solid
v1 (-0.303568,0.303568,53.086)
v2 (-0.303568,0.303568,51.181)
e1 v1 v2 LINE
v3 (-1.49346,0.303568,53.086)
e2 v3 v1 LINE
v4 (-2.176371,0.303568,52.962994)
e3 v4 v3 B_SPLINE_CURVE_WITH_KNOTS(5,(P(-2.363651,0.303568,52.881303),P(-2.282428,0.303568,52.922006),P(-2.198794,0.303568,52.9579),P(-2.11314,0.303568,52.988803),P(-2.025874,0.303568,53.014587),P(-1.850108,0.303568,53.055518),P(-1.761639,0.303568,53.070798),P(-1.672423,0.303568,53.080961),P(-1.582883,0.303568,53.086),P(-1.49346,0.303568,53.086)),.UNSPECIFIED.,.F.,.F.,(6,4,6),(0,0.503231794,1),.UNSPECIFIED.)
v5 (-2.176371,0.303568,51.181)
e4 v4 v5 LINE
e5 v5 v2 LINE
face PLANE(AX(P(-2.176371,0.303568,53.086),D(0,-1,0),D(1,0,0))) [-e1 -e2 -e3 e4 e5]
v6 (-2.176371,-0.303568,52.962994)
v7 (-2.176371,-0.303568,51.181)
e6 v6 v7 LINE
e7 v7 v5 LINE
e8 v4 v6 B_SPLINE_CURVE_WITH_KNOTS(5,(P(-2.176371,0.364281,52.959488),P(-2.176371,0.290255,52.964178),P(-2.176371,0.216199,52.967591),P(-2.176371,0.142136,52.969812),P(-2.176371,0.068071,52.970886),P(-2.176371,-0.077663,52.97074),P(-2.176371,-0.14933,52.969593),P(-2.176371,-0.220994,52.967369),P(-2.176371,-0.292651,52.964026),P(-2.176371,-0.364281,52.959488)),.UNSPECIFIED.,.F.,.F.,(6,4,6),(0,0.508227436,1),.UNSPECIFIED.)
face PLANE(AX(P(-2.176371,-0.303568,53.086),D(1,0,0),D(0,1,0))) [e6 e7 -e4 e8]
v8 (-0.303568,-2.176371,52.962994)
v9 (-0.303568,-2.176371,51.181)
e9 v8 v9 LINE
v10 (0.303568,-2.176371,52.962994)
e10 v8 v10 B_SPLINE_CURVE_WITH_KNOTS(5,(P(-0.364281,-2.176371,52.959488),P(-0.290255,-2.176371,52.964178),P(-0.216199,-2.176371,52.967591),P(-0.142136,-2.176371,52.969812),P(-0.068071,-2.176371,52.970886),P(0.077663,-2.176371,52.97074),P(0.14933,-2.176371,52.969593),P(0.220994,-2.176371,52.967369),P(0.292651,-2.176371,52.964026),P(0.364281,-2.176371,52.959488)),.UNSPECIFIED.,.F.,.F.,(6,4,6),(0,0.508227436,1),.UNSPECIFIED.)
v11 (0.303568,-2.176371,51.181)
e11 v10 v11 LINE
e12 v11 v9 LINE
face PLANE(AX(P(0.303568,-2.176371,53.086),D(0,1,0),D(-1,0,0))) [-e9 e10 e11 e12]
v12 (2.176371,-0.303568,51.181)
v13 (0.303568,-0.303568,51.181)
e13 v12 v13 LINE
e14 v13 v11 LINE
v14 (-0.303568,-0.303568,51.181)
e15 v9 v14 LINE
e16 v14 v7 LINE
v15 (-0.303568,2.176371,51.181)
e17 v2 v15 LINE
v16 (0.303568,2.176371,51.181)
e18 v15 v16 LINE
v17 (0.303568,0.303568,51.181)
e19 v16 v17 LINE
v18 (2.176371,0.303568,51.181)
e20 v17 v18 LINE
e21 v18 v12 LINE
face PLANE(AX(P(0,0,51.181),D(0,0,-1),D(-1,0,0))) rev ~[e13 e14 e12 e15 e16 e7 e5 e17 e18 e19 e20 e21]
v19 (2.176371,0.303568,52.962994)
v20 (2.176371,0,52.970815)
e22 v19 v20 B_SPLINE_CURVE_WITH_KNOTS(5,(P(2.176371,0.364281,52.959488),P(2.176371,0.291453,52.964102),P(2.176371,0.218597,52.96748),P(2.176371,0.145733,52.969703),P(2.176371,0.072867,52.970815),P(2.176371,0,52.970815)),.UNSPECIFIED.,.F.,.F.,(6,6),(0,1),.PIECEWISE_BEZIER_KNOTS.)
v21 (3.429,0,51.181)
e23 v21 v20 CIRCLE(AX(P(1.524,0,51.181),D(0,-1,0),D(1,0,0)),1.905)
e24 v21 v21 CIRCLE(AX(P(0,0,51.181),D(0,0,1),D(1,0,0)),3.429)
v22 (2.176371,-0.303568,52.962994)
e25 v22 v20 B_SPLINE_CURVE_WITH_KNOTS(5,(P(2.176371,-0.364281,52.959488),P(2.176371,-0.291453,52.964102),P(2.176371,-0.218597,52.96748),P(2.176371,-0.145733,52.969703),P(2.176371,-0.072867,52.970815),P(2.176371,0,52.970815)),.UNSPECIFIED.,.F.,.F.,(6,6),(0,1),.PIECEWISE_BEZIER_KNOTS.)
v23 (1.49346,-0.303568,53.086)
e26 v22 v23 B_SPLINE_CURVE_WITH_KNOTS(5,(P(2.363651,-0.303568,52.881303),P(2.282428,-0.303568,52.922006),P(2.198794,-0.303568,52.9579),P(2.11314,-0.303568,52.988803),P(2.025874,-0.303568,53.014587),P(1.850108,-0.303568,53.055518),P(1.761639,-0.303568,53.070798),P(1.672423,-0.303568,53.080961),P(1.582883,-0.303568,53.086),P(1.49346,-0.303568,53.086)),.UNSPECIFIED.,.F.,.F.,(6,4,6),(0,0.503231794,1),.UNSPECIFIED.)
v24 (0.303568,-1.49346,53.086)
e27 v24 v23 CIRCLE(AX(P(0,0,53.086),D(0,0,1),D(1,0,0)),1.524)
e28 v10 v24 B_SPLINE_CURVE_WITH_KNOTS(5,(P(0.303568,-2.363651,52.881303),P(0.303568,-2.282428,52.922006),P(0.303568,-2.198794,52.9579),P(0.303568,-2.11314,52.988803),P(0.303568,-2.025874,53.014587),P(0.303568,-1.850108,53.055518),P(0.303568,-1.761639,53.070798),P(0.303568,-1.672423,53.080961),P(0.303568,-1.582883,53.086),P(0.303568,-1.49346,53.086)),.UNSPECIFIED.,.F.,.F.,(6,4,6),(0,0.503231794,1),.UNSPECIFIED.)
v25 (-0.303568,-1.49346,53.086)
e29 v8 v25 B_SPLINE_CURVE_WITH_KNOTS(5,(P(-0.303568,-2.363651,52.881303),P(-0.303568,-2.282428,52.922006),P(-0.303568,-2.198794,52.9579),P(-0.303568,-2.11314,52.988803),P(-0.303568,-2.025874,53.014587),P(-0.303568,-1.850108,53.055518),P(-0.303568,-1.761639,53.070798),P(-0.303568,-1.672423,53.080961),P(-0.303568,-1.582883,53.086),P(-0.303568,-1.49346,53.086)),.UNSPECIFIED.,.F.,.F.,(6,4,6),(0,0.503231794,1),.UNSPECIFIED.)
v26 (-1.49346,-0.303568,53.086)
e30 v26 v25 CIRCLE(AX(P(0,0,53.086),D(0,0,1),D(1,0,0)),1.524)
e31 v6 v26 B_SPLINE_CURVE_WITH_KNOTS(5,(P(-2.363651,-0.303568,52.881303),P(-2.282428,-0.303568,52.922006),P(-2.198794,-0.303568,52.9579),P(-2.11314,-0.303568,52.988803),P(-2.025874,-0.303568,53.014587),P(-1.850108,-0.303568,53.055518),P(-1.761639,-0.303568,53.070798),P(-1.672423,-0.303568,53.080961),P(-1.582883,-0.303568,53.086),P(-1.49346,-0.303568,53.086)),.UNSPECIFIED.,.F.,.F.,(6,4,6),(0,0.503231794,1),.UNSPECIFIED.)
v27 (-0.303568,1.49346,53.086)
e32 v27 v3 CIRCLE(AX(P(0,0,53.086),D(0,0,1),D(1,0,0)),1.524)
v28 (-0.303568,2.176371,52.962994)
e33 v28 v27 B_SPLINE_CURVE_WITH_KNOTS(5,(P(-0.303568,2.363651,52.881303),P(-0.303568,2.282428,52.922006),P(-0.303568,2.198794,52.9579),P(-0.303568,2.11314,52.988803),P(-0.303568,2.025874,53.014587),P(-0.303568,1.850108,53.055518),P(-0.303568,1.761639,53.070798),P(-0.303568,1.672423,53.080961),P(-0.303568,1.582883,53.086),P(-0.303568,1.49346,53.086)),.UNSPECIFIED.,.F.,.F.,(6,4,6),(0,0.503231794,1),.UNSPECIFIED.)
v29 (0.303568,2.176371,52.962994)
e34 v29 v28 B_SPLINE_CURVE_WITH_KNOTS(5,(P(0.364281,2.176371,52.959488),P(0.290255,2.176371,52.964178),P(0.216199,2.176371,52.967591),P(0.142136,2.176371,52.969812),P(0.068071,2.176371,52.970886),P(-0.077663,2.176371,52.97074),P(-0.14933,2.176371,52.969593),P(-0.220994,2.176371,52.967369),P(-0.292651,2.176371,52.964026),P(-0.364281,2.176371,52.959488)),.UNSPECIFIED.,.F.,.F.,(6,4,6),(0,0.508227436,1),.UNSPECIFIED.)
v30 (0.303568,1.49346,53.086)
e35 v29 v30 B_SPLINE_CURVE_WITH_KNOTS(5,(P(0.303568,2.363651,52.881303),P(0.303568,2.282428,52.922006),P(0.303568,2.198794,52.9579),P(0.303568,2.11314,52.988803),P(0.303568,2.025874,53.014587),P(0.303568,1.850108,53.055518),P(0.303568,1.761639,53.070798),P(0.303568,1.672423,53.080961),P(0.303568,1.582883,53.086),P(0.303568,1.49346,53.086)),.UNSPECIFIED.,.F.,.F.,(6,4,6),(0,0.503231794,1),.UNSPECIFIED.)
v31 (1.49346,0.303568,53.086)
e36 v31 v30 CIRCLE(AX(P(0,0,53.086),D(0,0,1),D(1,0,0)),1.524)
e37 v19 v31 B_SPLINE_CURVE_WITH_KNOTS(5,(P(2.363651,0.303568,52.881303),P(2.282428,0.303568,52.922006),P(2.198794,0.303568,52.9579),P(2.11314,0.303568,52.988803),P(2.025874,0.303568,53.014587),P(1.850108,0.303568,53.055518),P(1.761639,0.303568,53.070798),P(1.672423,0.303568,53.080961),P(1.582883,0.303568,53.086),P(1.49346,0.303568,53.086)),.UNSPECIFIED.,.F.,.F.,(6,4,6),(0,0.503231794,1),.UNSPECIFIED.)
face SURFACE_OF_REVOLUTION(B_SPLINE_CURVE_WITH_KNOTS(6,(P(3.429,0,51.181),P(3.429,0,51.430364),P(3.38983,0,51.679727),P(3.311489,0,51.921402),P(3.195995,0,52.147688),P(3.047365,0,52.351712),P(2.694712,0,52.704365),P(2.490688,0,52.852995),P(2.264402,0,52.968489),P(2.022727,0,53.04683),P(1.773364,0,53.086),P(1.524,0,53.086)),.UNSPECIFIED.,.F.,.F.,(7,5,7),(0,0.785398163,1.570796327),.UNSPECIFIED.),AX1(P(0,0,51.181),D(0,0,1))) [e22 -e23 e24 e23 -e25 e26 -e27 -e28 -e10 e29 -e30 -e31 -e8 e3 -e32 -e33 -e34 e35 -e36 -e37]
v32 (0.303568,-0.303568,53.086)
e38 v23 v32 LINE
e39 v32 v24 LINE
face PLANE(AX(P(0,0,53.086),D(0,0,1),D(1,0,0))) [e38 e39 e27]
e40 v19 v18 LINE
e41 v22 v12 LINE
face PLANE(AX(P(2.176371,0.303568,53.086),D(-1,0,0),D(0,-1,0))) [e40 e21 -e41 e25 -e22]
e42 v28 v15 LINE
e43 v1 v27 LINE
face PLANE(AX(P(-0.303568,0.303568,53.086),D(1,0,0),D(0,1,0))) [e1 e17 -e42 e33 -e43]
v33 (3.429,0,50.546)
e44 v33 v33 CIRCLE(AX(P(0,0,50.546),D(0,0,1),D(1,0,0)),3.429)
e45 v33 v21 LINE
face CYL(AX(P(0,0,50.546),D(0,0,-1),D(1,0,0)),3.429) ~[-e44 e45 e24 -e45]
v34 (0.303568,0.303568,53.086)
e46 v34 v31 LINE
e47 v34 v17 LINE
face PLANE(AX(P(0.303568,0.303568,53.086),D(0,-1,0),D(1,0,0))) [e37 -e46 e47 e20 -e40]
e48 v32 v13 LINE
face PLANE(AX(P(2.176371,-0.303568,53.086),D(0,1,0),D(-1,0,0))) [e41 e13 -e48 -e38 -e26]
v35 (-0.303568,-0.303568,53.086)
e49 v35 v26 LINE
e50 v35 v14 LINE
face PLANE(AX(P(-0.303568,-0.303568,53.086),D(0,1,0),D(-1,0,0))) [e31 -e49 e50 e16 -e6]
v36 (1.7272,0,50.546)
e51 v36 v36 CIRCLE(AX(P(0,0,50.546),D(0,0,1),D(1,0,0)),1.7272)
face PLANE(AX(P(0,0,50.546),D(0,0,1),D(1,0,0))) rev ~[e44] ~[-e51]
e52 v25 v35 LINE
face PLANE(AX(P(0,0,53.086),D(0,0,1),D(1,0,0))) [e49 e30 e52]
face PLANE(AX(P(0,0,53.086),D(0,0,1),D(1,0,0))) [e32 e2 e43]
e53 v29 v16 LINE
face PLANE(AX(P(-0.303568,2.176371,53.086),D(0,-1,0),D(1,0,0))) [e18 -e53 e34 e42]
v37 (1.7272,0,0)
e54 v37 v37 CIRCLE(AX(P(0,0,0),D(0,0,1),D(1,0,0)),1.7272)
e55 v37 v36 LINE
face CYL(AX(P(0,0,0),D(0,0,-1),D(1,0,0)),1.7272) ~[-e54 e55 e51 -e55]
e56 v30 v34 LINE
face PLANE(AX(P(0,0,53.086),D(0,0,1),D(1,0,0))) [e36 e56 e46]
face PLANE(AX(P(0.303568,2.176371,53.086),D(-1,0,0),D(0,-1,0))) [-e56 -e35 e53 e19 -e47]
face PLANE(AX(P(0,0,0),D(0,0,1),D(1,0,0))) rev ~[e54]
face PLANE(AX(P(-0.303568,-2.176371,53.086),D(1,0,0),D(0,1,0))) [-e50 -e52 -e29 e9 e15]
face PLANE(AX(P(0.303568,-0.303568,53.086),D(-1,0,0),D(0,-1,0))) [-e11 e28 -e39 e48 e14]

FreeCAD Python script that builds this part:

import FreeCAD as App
import Part
import Sketcher

V = App.Vector
Q = App.Units.Quantity


def edges_at(feature, points):
    """Names of the edges that pass closest to the given points."""
    edges = feature.Shape.Edges
    near = lambda p: min(range(len(edges)), key=lambda i: edges[i].distToShape(Part.Vertex(*p))[0])
    return sorted({f"Edge{near(p) + 1}" for p in points})

doc = App.newDocument("Part")
body = doc.addObject("PartDesign::Body", "Body")

# Sketch on XY plane
sketch1 = doc.addObject("Sketcher::SketchObject", "Sketch")
body.addObject(sketch1)
sketch1.AttachmentSupport = (doc.XY_Plane, [""])
sketch1.MapMode = "FlatFace"
sketch1.addGeometry(Part.Circle(V(0, 0, 0), V(0, 0, 1), 1.7), False)
sketch1.addConstraint(Sketcher.Constraint("Coincident", 0, 3, -1, 1))
sketch1.addConstraint(Sketcher.Constraint("Diameter", 0, Q("0.136 in")))
pad1 = doc.addObject("PartDesign::Pad", "Pad")
body.addObject(pad1)
pad1.Profile = sketch1
pad1.Length = Q("1.99 in")

# Sketch on XY plane
sketch2 = doc.addObject("Sketcher::SketchObject", "Sketch001")
body.addObject(sketch2)
sketch2.AttachmentSupport = (doc.XY_Plane, [""])
sketch2.MapMode = "FlatFace"
sketch2.AttachmentOffset = App.Placement(V(0, 0, 1.99 * 25.4), App.Rotation())
sketch2.addGeometry(Part.Circle(V(0, 0, 0), V(0, 0, 1), 3.4), False)
sketch2.addConstraint(Sketcher.Constraint("Coincident", 0, 3, -1, 1))
sketch2.addConstraint(Sketcher.Constraint("Diameter", 0, Q("0.27 in")))
pad2 = doc.addObject("PartDesign::Pad", "Pad001")
body.addObject(pad2)
pad2.Profile = sketch2
pad2.Length = Q("0.1 in")
doc.recompute()

fillet = doc.addObject("PartDesign::Fillet", "Fillet")
body.addObject(fillet)
fillet.Base = (pad2, edges_at(pad2, [(-3.429, 0, 53.086)]))
fillet.Radius = Q("0.075 in")

# Sketch on XY plane
sketch3 = doc.addObject("Sketcher::SketchObject", "Sketch002")
body.addObject(sketch3)
sketch3.AttachmentSupport = (doc.XY_Plane, [""])
sketch3.MapMode = "FlatFace"
sketch3.AttachmentOffset = App.Placement(V(0, 0, 2.09 * 25.4), App.Rotation())
sketch3.addGeometry(Part.LineSegment(V(-0.3, 2.2, 0), V(-0.3, 0.3, 0)), False)
sketch3.addGeometry(Part.LineSegment(V(-0.3, 0.3, 0), V(-2.2, 0.3, 0)), False)
sketch3.addGeometry(Part.LineSegment(V(-2.2, 0.3, 0), V(-2.2, -0.3, 0)), False)
sketch3.addGeometry(Part.LineSegment(V(-2.2, -0.3, 0), V(-0.3, -0.3, 0)), False)
sketch3.addGeometry(Part.LineSegment(V(-0.3, -0.3, 0), V(-0.3, -2.2, 0)), False)
sketch3.addGeometry(Part.LineSegment(V(-0.3, -2.2, 0), V(0.3, -2.2, 0)), False)
sketch3.addGeometry(Part.LineSegment(V(0.3, -2.2, 0), V(0.3, -0.3, 0)), False)
sketch3.addGeometry(Part.LineSegment(V(0.3, -0.3, 0), V(2.2, -0.3, 0)), False)
sketch3.addGeometry(Part.LineSegment(V(2.2, -0.3, 0), V(2.2, 0.3, 0)), False)
sketch3.addGeometry(Part.LineSegment(V(2.2, 0.3, 0), V(0.3, 0.3, 0)), False)
sketch3.addGeometry(Part.LineSegment(V(0.3, 0.3, 0), V(0.3, 2.2, 0)), False)
sketch3.addGeometry(Part.LineSegment(V(0.3, 2.2, 0), V(-0.3, 2.2, 0)), False)
sketch3.addConstraint(Sketcher.Constraint("Coincident", 0, 2, 1, 1))
sketch3.addConstraint(Sketcher.Constraint("Coincident", 1, 2, 2, 1))
sketch3.addConstraint(Sketcher.Constraint("Coincident", 2, 2, 3, 1))
sketch3.addConstraint(Sketcher.Constraint("Coincident", 3, 2, 4, 1))
sketch3.addConstraint(Sketcher.Constraint("Coincident", 4, 2, 5, 1))
sketch3.addConstraint(Sketcher.Constraint("Coincident", 5, 2, 6, 1))
sketch3.addConstraint(Sketcher.Constraint("Coincident", 6, 2, 7, 1))
sketch3.addConstraint(Sketcher.Constraint("Coincident", 7, 2, 8, 1))
sketch3.addConstraint(Sketcher.Constraint("Coincident", 8, 2, 9, 1))
sketch3.addConstraint(Sketcher.Constraint("Coincident", 9, 2, 10, 1))
sketch3.addConstraint(Sketcher.Constraint("Coincident", 10, 2, 11, 1))
sketch3.addConstraint(Sketcher.Constraint("Coincident", 11, 2, 0, 1))
sketch3.addConstraint(Sketcher.Constraint("Vertical", 0))
sketch3.addConstraint(Sketcher.Constraint("Horizontal", 1))
sketch3.addConstraint(Sketcher.Constraint("Vertical", 2))
sketch3.addConstraint(Sketcher.Constraint("Horizontal", 3))
sketch3.addConstraint(Sketcher.Constraint("Vertical", 4))
sketch3.addConstraint(Sketcher.Constraint("Horizontal", 5))
sketch3.addConstraint(Sketcher.Constraint("Vertical", 6))
sketch3.addConstraint(Sketcher.Constraint("Horizontal", 7))
sketch3.addConstraint(Sketcher.Constraint("Vertical", 8))
sketch3.addConstraint(Sketcher.Constraint("Horizontal", 9))
sketch3.addConstraint(Sketcher.Constraint("Vertical", 10))
sketch3.addConstraint(Sketcher.Constraint("Horizontal", 11))
sketch3.addConstraint(Sketcher.Constraint("Symmetric", 0, 2, 6, 2, -1, 1))
sketch3.addConstraint(Sketcher.Constraint("Symmetric", 2, 2, 8, 2, -1, 1))
sketch3.addConstraint(Sketcher.Constraint("Symmetric", 4, 2, 10, 2, -1, 1))
sketch3.addConstraint(Sketcher.Constraint("Symmetric", 3, 2, 6, 2, -2))
sketch3.addConstraint(Sketcher.Constraint("Equal", 9, 0))
sketch3.addConstraint(Sketcher.Constraint("Equal", 11, 2))
sketch3.addConstraint(Sketcher.Constraint("DistanceX", 1, 2, 1, 1, 1.872803))
sketch3.addConstraint(Sketcher.Constraint("DistanceX", 5, 1, 5, 2, 0.607136))
pocket1 = doc.addObject("PartDesign::Pocket", "Pocket")
body.addObject(pocket1)
pocket1.Profile = sketch3
pocket1.Length = Q("0.075 in")

doc.recompute()
